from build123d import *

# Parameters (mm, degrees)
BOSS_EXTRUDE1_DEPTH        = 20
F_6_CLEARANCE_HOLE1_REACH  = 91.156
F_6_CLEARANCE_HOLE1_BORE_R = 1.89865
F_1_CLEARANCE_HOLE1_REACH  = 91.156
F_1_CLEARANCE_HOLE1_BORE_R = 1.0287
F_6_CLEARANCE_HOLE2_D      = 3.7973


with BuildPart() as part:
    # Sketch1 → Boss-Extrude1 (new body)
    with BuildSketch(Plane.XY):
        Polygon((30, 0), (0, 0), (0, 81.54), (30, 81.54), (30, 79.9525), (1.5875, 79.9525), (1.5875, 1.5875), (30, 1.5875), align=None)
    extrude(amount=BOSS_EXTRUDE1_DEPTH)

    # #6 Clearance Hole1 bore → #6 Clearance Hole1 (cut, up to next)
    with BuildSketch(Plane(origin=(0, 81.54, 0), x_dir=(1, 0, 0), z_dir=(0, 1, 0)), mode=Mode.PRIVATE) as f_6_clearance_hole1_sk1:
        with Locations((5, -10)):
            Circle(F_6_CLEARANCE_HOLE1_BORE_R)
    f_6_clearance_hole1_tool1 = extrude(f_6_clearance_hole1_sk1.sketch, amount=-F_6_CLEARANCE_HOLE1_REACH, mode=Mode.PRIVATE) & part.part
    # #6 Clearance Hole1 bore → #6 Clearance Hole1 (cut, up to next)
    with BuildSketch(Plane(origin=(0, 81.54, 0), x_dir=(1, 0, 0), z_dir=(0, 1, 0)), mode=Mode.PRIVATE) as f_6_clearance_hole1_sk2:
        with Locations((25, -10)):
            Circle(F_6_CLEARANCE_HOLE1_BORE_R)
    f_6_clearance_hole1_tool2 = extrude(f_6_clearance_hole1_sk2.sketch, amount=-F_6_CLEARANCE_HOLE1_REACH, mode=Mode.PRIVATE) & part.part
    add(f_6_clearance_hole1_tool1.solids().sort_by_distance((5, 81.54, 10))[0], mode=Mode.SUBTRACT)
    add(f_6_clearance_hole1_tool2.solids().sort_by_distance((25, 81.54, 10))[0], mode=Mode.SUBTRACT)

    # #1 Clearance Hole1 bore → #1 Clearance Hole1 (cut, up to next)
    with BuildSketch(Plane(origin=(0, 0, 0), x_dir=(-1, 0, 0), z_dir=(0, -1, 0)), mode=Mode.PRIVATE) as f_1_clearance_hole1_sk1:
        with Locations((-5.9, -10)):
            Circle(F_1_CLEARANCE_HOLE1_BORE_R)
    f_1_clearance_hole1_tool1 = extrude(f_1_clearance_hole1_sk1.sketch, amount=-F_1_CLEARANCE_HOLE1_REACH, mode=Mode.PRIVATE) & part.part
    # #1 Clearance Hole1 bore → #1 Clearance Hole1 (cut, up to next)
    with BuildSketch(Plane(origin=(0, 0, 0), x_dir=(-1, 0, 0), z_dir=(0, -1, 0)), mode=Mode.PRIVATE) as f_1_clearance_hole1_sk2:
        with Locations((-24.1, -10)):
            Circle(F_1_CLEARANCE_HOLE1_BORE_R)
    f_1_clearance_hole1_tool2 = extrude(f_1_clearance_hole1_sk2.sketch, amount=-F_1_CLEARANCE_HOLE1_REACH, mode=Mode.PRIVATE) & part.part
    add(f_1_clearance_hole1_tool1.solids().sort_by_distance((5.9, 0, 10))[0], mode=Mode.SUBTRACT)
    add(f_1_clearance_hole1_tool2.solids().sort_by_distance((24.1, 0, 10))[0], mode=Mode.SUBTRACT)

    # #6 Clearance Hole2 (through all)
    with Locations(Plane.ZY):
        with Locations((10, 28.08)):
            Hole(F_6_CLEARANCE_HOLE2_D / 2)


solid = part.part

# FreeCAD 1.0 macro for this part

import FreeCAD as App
import Part
import Sketcher


def add_polygon(sketch, points):
    """Adds a closed chain of lines whose ends are joined by coincident constraints."""
    first, n = sketch.GeometryCount, len(points)
    for a, b in zip(points, points[1:] + points[:1]):
        sketch.addGeometry(Part.LineSegment(App.Vector(*a, 0), App.Vector(*b, 0)), False)
    for i in range(n):
        sketch.addConstraint(Sketcher.Constraint("Coincident", first + i, 2, first + (i + 1) % n, 1))

doc = App.newDocument("Part")
body = doc.addObject("PartDesign::Body", "Body")

# Sketch on XY plane
sketch1 = body.newObject("Sketcher::SketchObject", "Sketch")
sketch1.AttachmentSupport = (doc.getObject("XY_Plane"), [""])
sketch1.MapMode = "FlatFace"
add_polygon(sketch1, [(0, 0), (30, 0), (30, 1.6), (1.6, 1.6), (1.6, 80), (30, 80), (30, 81.5), (0, 81.5)])  # lines 0-7
sketch1.addConstraint([
    Sketcher.Constraint("Horizontal", 0),
    Sketcher.Constraint("Vertical", 1),
    Sketcher.Constraint("Horizontal", 2),
    Sketcher.Constraint("Vertical", 3),
    Sketcher.Constraint("Horizontal", 4),
    Sketcher.Constraint("Vertical", 5),
    Sketcher.Constraint("Horizontal", 6),
    Sketcher.Constraint("Vertical", 7),
    Sketcher.Constraint("Coincident", 7, 2, -1, 1),
    Sketcher.Constraint("Vertical", 1, 2, 4, 2),
    Sketcher.Constraint("Equal", 1, 5),
    Sketcher.Constraint("DistanceX", 0, 1, 0, 2, 30.0),
    Sketcher.Constraint("DistanceY", 7, 2, 7, 1, 81.54),
    Sketcher.Constraint("DistanceY", 3, 1, 3, 2, 78.365),
    Sketcher.Constraint("DistanceX", 2, 2, 2, 1, 28.4125),
])
pad1 = body.newObject("PartDesign::Pad", "Pad")
pad1.Profile = sketch1
pad1.Length = 20

# Sketch on XZ plane
sketch2 = body.newObject("Sketcher::SketchObject", "Sketch001")
sketch2.AttachmentSupport = (doc.getObject("XZ_Plane"), [""])
sketch2.MapMode = "FlatFace"
sketch2.AttachmentOffset = App.Placement(App.Vector(0, 0, -81.54), App.Rotation())
sketch2.addGeometry(Part.Circle(App.Vector(5, 10, 0), App.Vector(0, 0, 1), 1.9), False)
sketch2.addConstraint([
    Sketcher.Constraint("DistanceX", -1, 1, 0, 3, 5.0),
    Sketcher.Constraint("DistanceY", -1, 1, 0, 3, 10.0),
    Sketcher.Constraint("Diameter", 0, 3.7973),
])
pocket1 = body.newObject("PartDesign::Pocket", "Pocket")
pocket1.Profile = sketch2
pocket1.Type = "UpToFirst"
pocket1.Reversed = True

# Sketch on XZ plane
sketch3 = body.newObject("Sketcher::SketchObject", "Sketch002")
sketch3.AttachmentSupport = (doc.getObject("XZ_Plane"), [""])
sketch3.MapMode = "FlatFace"
sketch3.AttachmentOffset = App.Placement(App.Vector(0, 0, -81.54), App.Rotation())
sketch3.addGeometry(Part.Circle(App.Vector(25, 10, 0), App.Vector(0, 0, 1), 1.9), False)
sketch3.addConstraint([
    Sketcher.Constraint("DistanceX", -1, 1, 0, 3, 25.0),
    Sketcher.Constraint("DistanceY", -1, 1, 0, 3, 10.0),
    Sketcher.Constraint("Diameter", 0, 3.7973),
])
pocket2 = body.newObject("PartDesign::Pocket", "Pocket001")
pocket2.Profile = sketch3
pocket2.Type = "UpToFirst"
pocket2.Reversed = True

# Sketch on XZ plane
sketch4 = body.newObject("Sketcher::SketchObject", "Sketch003")
sketch4.AttachmentSupport = (doc.getObject("XZ_Plane"), [""])
sketch4.MapMode = "FlatFace"
sketch4.addGeometry(Part.Circle(App.Vector(5.9, 10, 0), App.Vector(0, 0, 1), 1), False)
sketch4.addConstraint([
    Sketcher.Constraint("DistanceY", -1, 1, 0, 3, 10.0),
    Sketcher.Constraint("Diameter", 0, 2.0574),
    Sketcher.Constraint("DistanceX", -1, 1, 0, 3, 5.9),
])
pocket3 = body.newObject("PartDesign::Pocket", "Pocket002")
pocket3.Profile = sketch4
pocket3.Type = "UpToFirst"

# Sketch on XZ plane
sketch5 = body.newObject("Sketcher::SketchObject", "Sketch004")
sketch5.AttachmentSupport = (doc.getObject("XZ_Plane"), [""])
sketch5.MapMode = "FlatFace"
sketch5.addGeometry(Part.Circle(App.Vector(24.1, 10, 0), App.Vector(0, 0, 1), 1), False)
sketch5.addConstraint([
    Sketcher.Constraint("DistanceY", -1, 1, 0, 3, 10.0),
    Sketcher.Constraint("Diameter", 0, 2.0574),
    Sketcher.Constraint("DistanceX", -1, 1, 0, 3, 24.1),
])
pocket4 = body.newObject("PartDesign::Pocket", "Pocket003")
pocket4.Profile = sketch5
pocket4.Type = "UpToFirst"

# Sketch on YZ plane
sketch6 = body.newObject("Sketcher::SketchObject", "Sketch005")
sketch6.AttachmentSupport = (doc.getObject("YZ_Plane"), [""])
sketch6.MapMode = "FlatFace"
sketch6.addGeometry(Part.Circle(App.Vector(28.1, 10, 0), App.Vector(0, 0, 1), 1.9), False)
sketch6.addConstraint([
    Sketcher.Constraint("DistanceY", -1, 1, 0, 3, 10.0),
    Sketcher.Constraint("Diameter", 0, 3.7973),
    Sketcher.Constraint("DistanceX", -1, 1, 0, 3, 28.08),
])
doc.recompute()
hole = body.newObject("PartDesign::Hole", "Hole")
hole.Profile = sketch6
hole.ThreadType = "None"
hole.Diameter = 3.7973
hole.DepthType = "ThroughAll"
hole.Reversed = True

doc.recompute()
